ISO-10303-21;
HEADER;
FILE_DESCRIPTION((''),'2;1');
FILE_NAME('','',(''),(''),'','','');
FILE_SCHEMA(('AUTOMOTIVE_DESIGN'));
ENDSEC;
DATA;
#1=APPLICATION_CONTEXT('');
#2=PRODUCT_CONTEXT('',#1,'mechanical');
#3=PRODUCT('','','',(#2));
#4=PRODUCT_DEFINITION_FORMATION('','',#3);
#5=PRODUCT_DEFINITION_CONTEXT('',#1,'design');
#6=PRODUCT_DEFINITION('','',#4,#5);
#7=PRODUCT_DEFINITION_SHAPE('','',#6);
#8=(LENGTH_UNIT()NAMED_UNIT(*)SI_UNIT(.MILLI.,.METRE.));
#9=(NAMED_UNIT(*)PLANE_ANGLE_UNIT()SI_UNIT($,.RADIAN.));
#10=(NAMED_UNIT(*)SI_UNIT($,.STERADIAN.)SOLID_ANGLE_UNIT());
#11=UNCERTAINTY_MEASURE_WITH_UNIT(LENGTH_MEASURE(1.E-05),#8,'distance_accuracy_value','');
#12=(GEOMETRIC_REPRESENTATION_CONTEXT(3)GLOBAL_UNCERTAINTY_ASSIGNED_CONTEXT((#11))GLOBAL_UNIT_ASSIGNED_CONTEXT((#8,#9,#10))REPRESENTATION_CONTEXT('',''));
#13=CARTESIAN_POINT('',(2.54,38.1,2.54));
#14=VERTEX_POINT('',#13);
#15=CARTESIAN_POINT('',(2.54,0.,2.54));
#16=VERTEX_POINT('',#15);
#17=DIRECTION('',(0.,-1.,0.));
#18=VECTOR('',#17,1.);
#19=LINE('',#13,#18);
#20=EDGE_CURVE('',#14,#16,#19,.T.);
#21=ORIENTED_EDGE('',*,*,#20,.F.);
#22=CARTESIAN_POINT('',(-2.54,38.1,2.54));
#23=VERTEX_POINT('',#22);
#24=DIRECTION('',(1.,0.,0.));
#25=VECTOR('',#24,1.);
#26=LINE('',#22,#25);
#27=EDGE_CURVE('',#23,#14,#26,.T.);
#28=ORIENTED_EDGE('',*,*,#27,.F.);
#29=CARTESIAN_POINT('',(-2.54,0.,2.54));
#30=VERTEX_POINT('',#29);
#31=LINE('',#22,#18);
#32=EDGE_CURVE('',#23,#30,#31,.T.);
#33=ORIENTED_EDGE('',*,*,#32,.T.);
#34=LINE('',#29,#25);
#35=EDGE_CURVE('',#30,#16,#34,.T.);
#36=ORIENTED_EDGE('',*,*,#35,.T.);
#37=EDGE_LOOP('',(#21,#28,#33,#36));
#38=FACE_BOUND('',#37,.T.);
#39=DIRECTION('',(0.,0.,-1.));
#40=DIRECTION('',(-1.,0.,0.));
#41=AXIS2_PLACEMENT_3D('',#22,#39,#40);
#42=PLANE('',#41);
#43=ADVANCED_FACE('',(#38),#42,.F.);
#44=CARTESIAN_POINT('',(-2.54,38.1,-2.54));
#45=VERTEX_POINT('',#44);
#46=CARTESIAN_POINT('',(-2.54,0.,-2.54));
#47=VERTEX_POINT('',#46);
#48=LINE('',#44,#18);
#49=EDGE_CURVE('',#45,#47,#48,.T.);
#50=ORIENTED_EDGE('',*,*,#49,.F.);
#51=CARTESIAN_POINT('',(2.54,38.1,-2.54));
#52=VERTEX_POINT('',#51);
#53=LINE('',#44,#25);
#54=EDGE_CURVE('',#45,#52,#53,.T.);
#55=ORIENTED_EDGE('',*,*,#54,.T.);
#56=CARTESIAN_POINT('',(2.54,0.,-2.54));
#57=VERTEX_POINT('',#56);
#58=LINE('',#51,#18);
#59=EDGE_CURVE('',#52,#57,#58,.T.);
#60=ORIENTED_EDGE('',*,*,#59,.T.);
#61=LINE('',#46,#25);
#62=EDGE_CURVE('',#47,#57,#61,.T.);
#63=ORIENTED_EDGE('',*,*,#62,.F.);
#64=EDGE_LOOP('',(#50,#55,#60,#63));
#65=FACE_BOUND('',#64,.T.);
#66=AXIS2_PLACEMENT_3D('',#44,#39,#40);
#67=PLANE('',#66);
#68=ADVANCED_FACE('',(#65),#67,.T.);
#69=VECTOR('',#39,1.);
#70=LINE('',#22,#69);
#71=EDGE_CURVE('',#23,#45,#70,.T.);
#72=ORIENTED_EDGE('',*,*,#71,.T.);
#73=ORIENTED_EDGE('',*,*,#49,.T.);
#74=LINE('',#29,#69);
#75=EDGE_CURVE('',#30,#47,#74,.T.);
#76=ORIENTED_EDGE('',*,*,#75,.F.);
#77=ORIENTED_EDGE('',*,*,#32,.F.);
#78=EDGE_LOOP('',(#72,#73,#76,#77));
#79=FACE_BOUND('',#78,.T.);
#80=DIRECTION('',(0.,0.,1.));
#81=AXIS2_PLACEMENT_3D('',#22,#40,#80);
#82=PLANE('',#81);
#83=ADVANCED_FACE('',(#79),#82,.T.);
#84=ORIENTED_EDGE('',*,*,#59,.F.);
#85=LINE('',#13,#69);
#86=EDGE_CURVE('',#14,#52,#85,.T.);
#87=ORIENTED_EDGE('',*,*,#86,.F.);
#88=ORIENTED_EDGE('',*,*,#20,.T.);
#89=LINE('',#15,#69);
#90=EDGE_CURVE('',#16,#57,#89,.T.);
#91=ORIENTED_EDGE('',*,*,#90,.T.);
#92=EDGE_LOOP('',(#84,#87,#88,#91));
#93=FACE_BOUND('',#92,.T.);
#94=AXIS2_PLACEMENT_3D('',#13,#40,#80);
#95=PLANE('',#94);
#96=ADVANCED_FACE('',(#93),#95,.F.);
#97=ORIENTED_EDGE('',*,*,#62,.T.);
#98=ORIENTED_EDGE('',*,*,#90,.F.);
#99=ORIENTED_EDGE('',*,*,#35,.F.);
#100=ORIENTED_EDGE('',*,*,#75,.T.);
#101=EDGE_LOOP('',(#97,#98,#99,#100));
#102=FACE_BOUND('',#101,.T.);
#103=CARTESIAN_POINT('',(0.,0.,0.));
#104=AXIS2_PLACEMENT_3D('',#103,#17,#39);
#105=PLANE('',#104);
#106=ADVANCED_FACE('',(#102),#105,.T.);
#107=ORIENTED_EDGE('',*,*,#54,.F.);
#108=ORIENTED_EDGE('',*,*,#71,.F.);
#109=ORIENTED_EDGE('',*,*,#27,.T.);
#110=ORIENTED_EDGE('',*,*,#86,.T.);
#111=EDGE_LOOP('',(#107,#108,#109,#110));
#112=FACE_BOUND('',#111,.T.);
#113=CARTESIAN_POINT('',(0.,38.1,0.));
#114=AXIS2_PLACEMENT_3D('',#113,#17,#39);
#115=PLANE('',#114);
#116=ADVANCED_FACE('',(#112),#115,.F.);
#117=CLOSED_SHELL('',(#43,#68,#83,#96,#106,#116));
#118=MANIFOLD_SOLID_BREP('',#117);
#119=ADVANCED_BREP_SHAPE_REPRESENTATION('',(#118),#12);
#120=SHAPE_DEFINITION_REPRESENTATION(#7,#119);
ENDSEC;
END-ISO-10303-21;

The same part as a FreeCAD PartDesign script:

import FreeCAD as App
import Part
import Sketcher

V = App.Vector
Q = App.Units.Quantity


def add_polygon(sketch, points):
    """Adds a closed chain of lines whose ends are joined by coincident constraints."""
    first, n = sketch.GeometryCount, len(points)
    for a, b in zip(points, points[1:] + points[:1]):
        sketch.addGeometry(Part.LineSegment(App.Vector(*a, 0), App.Vector(*b, 0)), False)
    for i in range(n):
        sketch.addConstraint(Sketcher.Constraint("Coincident", first + i, 2, first + (i + 1) % n, 1))

doc = App.newDocument("Part")
body = doc.addObject("PartDesign::Body", "Body")

# Sketch on XZ plane
sketch1 = doc.addObject("Sketcher::SketchObject", "Sketch")
body.addObject(sketch1)
sketch1.AttachmentSupport = (doc.XZ_Plane, [""])
sketch1.MapMode = "FlatFace"
add_polygon(sketch1, [(-2.54, -2.54), (-2.54, 2.54), (2.54, 2.54), (2.54, -2.54)])  # lines 0-3
sketch1.addConstraint(Sketcher.Constraint("Vertical", 0))
sketch1.addConstraint(Sketcher.Constraint("Horizontal", 1))
sketch1.addConstraint(Sketcher.Constraint("Vertical", 2))
sketch1.addConstraint(Sketcher.Constraint("Horizontal", 3))
sketch1.addConstraint(Sketcher.Constraint("Symmetric", 0, 2, 2, 2, -1, 1))
sketch1.addConstraint(Sketcher.Constraint("Equal", 3, 0))
sketch1.addConstraint(Sketcher.Constraint("DistanceX", 1, 1, 1, 2, Q("0.2 in")))
pad1 = doc.addObject("PartDesign::Pad", "Pad")
body.addObject(pad1)
pad1.Profile = sketch1
pad1.Length = Q("1.5 in")
pad1.Reversed = True

doc.recompute()
